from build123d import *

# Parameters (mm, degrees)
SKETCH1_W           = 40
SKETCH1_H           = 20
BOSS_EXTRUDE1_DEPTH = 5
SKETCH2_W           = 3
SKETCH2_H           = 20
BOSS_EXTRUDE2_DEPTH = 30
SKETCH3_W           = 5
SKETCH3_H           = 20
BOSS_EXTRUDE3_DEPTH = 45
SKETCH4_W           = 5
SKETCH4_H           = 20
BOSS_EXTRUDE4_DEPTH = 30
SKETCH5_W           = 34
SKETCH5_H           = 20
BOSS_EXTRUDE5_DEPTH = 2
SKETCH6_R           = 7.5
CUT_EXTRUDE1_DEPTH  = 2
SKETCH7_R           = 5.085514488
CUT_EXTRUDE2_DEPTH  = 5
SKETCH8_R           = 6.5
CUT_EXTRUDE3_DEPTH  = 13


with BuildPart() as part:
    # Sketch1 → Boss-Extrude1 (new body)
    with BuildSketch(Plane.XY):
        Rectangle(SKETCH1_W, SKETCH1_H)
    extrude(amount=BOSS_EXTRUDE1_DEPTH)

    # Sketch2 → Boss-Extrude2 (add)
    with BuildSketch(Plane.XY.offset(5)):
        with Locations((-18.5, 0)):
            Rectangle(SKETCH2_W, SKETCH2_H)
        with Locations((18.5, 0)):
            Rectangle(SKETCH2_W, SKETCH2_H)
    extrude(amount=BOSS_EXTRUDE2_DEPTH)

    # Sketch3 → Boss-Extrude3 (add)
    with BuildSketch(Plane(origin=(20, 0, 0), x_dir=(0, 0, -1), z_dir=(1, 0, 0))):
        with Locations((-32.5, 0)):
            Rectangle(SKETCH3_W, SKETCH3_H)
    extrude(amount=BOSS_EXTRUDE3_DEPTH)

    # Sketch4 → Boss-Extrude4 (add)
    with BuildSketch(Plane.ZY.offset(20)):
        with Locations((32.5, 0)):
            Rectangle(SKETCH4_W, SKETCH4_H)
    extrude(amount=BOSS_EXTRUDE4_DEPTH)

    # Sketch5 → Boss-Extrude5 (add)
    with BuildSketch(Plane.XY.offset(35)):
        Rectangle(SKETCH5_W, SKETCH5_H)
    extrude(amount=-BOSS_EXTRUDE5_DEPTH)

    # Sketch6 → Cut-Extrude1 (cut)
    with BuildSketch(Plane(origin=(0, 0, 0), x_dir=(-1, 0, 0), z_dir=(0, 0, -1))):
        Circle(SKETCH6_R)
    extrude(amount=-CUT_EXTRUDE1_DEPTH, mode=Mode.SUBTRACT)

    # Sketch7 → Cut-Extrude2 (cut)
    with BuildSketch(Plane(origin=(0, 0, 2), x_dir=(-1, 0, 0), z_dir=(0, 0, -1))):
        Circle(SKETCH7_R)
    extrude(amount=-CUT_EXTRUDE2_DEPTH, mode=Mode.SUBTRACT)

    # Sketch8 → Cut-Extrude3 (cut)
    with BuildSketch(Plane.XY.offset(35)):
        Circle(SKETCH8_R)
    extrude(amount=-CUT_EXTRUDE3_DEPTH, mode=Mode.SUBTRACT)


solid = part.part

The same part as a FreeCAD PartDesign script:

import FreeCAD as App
import Part
import Sketcher
from FreeCAD import Vector
Q = App.Units.Quantity

doc = App.newDocument("Part")
body = doc.addObject("PartDesign::Body", "Body")

# Sketch on XY plane
sketch1 = body.newObject("Sketcher::SketchObject", "Sketch")
sketch1.AttachmentSupport = (doc.getObject("XY_Plane"), [""])
sketch1.MapMode = "FlatFace"
sketch1.addGeometry(Part.LineSegment(Vector(-20, 10, 0), Vector(-20, -10, 0)), False)
sketch1.addGeometry(Part.LineSegment(Vector(-20, -10, 0), Vector(20, -10, 0)), False)
sketch1.addGeometry(Part.LineSegment(Vector(20, -10, 0), Vector(20, 10, 0)), False)
sketch1.addGeometry(Part.LineSegment(Vector(20, 10, 0), Vector(-20, 10, 0)), False)
sketch1.addConstraint(Sketcher.Constraint("Coincident", 0, 2, 1, 1))
sketch1.addConstraint(Sketcher.Constraint("Coincident", 1, 2, 2, 1))
sketch1.addConstraint(Sketcher.Constraint("Coincident", 2, 2, 3, 1))
sketch1.addConstraint(Sketcher.Constraint("Coincident", 3, 2, 0, 1))
sketch1.addConstraint(Sketcher.Constraint("Vertical", 0))
sketch1.addConstraint(Sketcher.Constraint("Horizontal", 1))
sketch1.addConstraint(Sketcher.Constraint("Vertical", 2))
sketch1.addConstraint(Sketcher.Constraint("Horizontal", 3))
sketch1.addConstraint(Sketcher.Constraint("Symmetric", 0, 2, 2, 2, -1, 1))
sketch1.addConstraint(Sketcher.Constraint("DistanceX", 1, 1, 1, 2, Q("40 mm")))
sketch1.addConstraint(Sketcher.Constraint("DistanceY", 0, 2, 0, 1, Q("20 mm")))
pad1 = body.newObject("PartDesign::Pad", "Pad")
pad1.Profile = sketch1
pad1.Length = 5

# Sketch on XY plane
sketch2 = body.newObject("Sketcher::SketchObject", "Sketch001")
sketch2.AttachmentSupport = (doc.getObject("XY_Plane"), [""])
sketch2.MapMode = "FlatFace"
sketch2.AttachmentOffset = App.Placement(Vector(0, 0, 5), App.Rotation())
sketch2.addGeometry(Part.LineSegment(Vector(-20, 10, 0), Vector(-20, -10, 0)), False)
sketch2.addGeometry(Part.LineSegment(Vector(-20, -10, 0), Vector(-17, -10, 0)), False)
sketch2.addGeometry(Part.LineSegment(Vector(-17, -10, 0), Vector(-17, 10, 0)), False)
sketch2.addGeometry(Part.LineSegment(Vector(-17, 10, 0), Vector(-20, 10, 0)), False)
sketch2.addGeometry(Part.LineSegment(Vector(17, 10, 0), Vector(17, -10, 0)), False)
sketch2.addGeometry(Part.LineSegment(Vector(17, -10, 0), Vector(20, -10, 0)), False)
sketch2.addGeometry(Part.LineSegment(Vector(20, -10, 0), Vector(20, 10, 0)), False)
sketch2.addGeometry(Part.LineSegment(Vector(20, 10, 0), Vector(17, 10, 0)), False)
sketch2.addConstraint(Sketcher.Constraint("Coincident", 0, 2, 1, 1))
sketch2.addConstraint(Sketcher.Constraint("Coincident", 1, 2, 2, 1))
sketch2.addConstraint(Sketcher.Constraint("Coincident", 2, 2, 3, 1))
sketch2.addConstraint(Sketcher.Constraint("Coincident", 3, 2, 0, 1))
sketch2.addConstraint(Sketcher.Constraint("Coincident", 4, 2, 5, 1))
sketch2.addConstraint(Sketcher.Constraint("Coincident", 5, 2, 6, 1))
sketch2.addConstraint(Sketcher.Constraint("Coincident", 6, 2, 7, 1))
sketch2.addConstraint(Sketcher.Constraint("Coincident", 7, 2, 4, 1))
sketch2.addConstraint(Sketcher.Constraint("Vertical", 0))
sketch2.addConstraint(Sketcher.Constraint("Horizontal", 1))
sketch2.addConstraint(Sketcher.Constraint("Vertical", 2))
sketch2.addConstraint(Sketcher.Constraint("Horizontal", 3))
sketch2.addConstraint(Sketcher.Constraint("Vertical", 4))
sketch2.addConstraint(Sketcher.Constraint("Horizontal", 5))
sketch2.addConstraint(Sketcher.Constraint("Vertical", 6))
sketch2.addConstraint(Sketcher.Constraint("Horizontal", 7))
sketch2.addConstraint(Sketcher.Constraint("Symmetric", 2, 2, 4, 2, -1, 1))
sketch2.addConstraint(Sketcher.Constraint("Symmetric", 0, 2, 6, 2, -1, 1))
sketch2.addConstraint(Sketcher.Constraint("Horizontal", 1, 2, 4, 2))
sketch2.addConstraint(Sketcher.Constraint("DistanceX", 1, 1, 1, 2, Q("3 mm")))
sketch2.addConstraint(Sketcher.Constraint("DistanceY", 0, 2, 0, 1, Q("20 mm")))
sketch2.addConstraint(Sketcher.Constraint("DistanceX", 0, 2, -1, 1, Q("20 mm")))
pad2 = body.newObject("PartDesign::Pad", "Pad001")
pad2.Profile = sketch2
pad2.Length = 30

# Sketch on YZ plane
sketch3 = body.newObject("Sketcher::SketchObject", "Sketch002")
sketch3.AttachmentSupport = (doc.getObject("YZ_Plane"), [""])
sketch3.MapMode = "FlatFace"
sketch3.AttachmentOffset = App.Placement(Vector(0, 0, 20), App.Rotation())
sketch3.addGeometry(Part.LineSegment(Vector(10, 35, 0), Vector(-10, 35, 0)), False)
sketch3.addGeometry(Part.LineSegment(Vector(-10, 35, 0), Vector(-10, 30, 0)), False)
sketch3.addGeometry(Part.LineSegment(Vector(-10, 30, 0), Vector(10, 30, 0)), False)
sketch3.addGeometry(Part.LineSegment(Vector(10, 30, 0), Vector(10, 35, 0)), False)
sketch3.addConstraint(Sketcher.Constraint("Coincident", 0, 2, 1, 1))
sketch3.addConstraint(Sketcher.Constraint("Coincident", 1, 2, 2, 1))
sketch3.addConstraint(Sketcher.Constraint("Coincident", 2, 2, 3, 1))
sketch3.addConstraint(Sketcher.Constraint("Coincident", 3, 2, 0, 1))
sketch3.addConstraint(Sketcher.Constraint("Horizontal", 0))
sketch3.addConstraint(Sketcher.Constraint("Vertical", 1))
sketch3.addConstraint(Sketcher.Constraint("Horizontal", 2))
sketch3.addConstraint(Sketcher.Constraint("Vertical", 3))
sketch3.addConstraint(Sketcher.Constraint("DistanceX", 0, 2, 0, 1, Q("20 mm")))
sketch3.addConstraint(Sketcher.Constraint("DistanceY", 1, 2, 1, 1, Q("5 mm")))
sketch3.addConstraint(Sketcher.Constraint("DistanceX", 0, 2, -1, 1, Q("10 mm")))
sketch3.addConstraint(Sketcher.Constraint("DistanceY", -1, 1, 0, 2, Q("35 mm")))
pad3 = body.newObject("PartDesign::Pad", "Pad002")
pad3.Profile = sketch3
pad3.Length = 45

# Sketch on YZ plane
sketch4 = body.newObject("Sketcher::SketchObject", "Sketch003")
sketch4.AttachmentSupport = (doc.getObject("YZ_Plane"), [""])
sketch4.MapMode = "FlatFace"
sketch4.AttachmentOffset = App.Placement(Vector(0, 0, -20), App.Rotation())
sketch4.addGeometry(Part.LineSegment(Vector(10, 30, 0), Vector(-10, 30, 0)), False)
sketch4.addGeometry(Part.LineSegment(Vector(-10, 30, 0), Vector(-10, 35, 0)), False)
sketch4.addGeometry(Part.LineSegment(Vector(-10, 35, 0), Vector(10, 35, 0)), False)
sketch4.addGeometry(Part.LineSegment(Vector(10, 35, 0), Vector(10, 30, 0)), False)
sketch4.addConstraint(Sketcher.Constraint("Coincident", 0, 2, 1, 1))
sketch4.addConstraint(Sketcher.Constraint("Coincident", 1, 2, 2, 1))
sketch4.addConstraint(Sketcher.Constraint("Coincident", 2, 2, 3, 1))
sketch4.addConstraint(Sketcher.Constraint("Coincident", 3, 2, 0, 1))
sketch4.addConstraint(Sketcher.Constraint("Horizontal", 0))
sketch4.addConstraint(Sketcher.Constraint("Vertical", 1))
sketch4.addConstraint(Sketcher.Constraint("Horizontal", 2))
sketch4.addConstraint(Sketcher.Constraint("Vertical", 3))
sketch4.addConstraint(Sketcher.Constraint("DistanceX", 0, 2, 0, 1, Q("20 mm")))
sketch4.addConstraint(Sketcher.Constraint("DistanceY", 1, 1, 1, 2, Q("5 mm")))
sketch4.addConstraint(Sketcher.Constraint("DistanceX", 0, 2, -1, 1, Q("10 mm")))
sketch4.addConstraint(Sketcher.Constraint("DistanceY", -1, 1, 0, 2, Q("30 mm")))
pad4 = body.newObject("PartDesign::Pad", "Pad003")
pad4.Profile = sketch4
pad4.Length = 30
pad4.Reversed = True

# Sketch on XY plane
sketch5 = body.newObject("Sketcher::SketchObject", "Sketch004")
sketch5.AttachmentSupport = (doc.getObject("XY_Plane"), [""])
sketch5.MapMode = "FlatFace"
sketch5.AttachmentOffset = App.Placement(Vector(0, 0, 35), App.Rotation())
sketch5.addGeometry(Part.LineSegment(Vector(-17, 10, 0), Vector(-17, -10, 0)), False)
sketch5.addGeometry(Part.LineSegment(Vector(-17, -10, 0), Vector(17, -10, 0)), False)
sketch5.addGeometry(Part.LineSegment(Vector(17, -10, 0), Vector(17, 10, 0)), False)
sketch5.addGeometry(Part.LineSegment(Vector(17, 10, 0), Vector(-17, 10, 0)), False)
sketch5.addConstraint(Sketcher.Constraint("Coincident", 0, 2, 1, 1))
sketch5.addConstraint(Sketcher.Constraint("Coincident", 1, 2, 2, 1))
sketch5.addConstraint(Sketcher.Constraint("Coincident", 2, 2, 3, 1))
sketch5.addConstraint(Sketcher.Constraint("Coincident", 3, 2, 0, 1))
sketch5.addConstraint(Sketcher.Constraint("Vertical", 0))
sketch5.addConstraint(Sketcher.Constraint("Horizontal", 1))
sketch5.addConstraint(Sketcher.Constraint("Vertical", 2))
sketch5.addConstraint(Sketcher.Constraint("Horizontal", 3))
sketch5.addConstraint(Sketcher.Constraint("Symmetric", 0, 2, 2, 2, -1, 1))
sketch5.addConstraint(Sketcher.Constraint("DistanceX", 1, 1, 1, 2, Q("34 mm")))
sketch5.addConstraint(Sketcher.Constraint("DistanceY", 0, 2, 0, 1, Q("20 mm")))
pad5 = body.newObject("PartDesign::Pad", "Pad004")
pad5.Profile = sketch5
pad5.Length = 2
pad5.Reversed = True

# Sketch on XY plane
sketch6 = body.newObject("Sketcher::SketchObject", "Sketch005")
sketch6.AttachmentSupport = (doc.getObject("XY_Plane"), [""])
sketch6.MapMode = "FlatFace"
sketch6.addGeometry(Part.Circle(Vector(0, 0, 0), Vector(0, 0, 1), 7.5), False)
sketch6.addConstraint(Sketcher.Constraint("Coincident", 0, 3, -1, 1))
sketch6.addConstraint(Sketcher.Constraint("Diameter", 0, Q("15 mm")))
pocket1 = body.newObject("PartDesign::Pocket", "Pocket")
pocket1.Profile = sketch6
pocket1.Length = 2
pocket1.Reversed = True

# Sketch on XY plane
sketch7 = body.newObject("Sketcher::SketchObject", "Sketch006")
sketch7.AttachmentSupport = (doc.getObject("XY_Plane"), [""])
sketch7.MapMode = "FlatFace"
sketch7.AttachmentOffset = App.Placement(Vector(0, 0, 2), App.Rotation())
sketch7.addGeometry(Part.Circle(Vector(0, 0, 0), Vector(0, 0, 1), 5.085514), False)
sketch7.addConstraint(Sketcher.Constraint("Coincident", 0, 3, -1, 1))
sketch7.addConstraint(Sketcher.Constraint("Diameter", 0, Q("10.171029 mm")))
pocket2 = body.newObject("PartDesign::Pocket", "Pocket001")
pocket2.Profile = sketch7
pocket2.Length = 5
pocket2.Reversed = True

# Sketch on XY plane
sketch8 = body.newObject("Sketcher::SketchObject", "Sketch007")
sketch8.AttachmentSupport = (doc.getObject("XY_Plane"), [""])
sketch8.MapMode = "FlatFace"
sketch8.AttachmentOffset = App.Placement(Vector(0, 0, 35), App.Rotation())
sketch8.addGeometry(Part.Circle(Vector(0, 0, 0), Vector(0, 0, 1), 6.5), False)
sketch8.addConstraint(Sketcher.Constraint("Coincident", 0, 3, -1, 1))
sketch8.addConstraint(Sketcher.Constraint("Diameter", 0, Q("13 mm")))
pocket3 = body.newObject("PartDesign::Pocket", "Pocket002")
pocket3.Profile = sketch8
pocket3.Length = 13

doc.recompute()
